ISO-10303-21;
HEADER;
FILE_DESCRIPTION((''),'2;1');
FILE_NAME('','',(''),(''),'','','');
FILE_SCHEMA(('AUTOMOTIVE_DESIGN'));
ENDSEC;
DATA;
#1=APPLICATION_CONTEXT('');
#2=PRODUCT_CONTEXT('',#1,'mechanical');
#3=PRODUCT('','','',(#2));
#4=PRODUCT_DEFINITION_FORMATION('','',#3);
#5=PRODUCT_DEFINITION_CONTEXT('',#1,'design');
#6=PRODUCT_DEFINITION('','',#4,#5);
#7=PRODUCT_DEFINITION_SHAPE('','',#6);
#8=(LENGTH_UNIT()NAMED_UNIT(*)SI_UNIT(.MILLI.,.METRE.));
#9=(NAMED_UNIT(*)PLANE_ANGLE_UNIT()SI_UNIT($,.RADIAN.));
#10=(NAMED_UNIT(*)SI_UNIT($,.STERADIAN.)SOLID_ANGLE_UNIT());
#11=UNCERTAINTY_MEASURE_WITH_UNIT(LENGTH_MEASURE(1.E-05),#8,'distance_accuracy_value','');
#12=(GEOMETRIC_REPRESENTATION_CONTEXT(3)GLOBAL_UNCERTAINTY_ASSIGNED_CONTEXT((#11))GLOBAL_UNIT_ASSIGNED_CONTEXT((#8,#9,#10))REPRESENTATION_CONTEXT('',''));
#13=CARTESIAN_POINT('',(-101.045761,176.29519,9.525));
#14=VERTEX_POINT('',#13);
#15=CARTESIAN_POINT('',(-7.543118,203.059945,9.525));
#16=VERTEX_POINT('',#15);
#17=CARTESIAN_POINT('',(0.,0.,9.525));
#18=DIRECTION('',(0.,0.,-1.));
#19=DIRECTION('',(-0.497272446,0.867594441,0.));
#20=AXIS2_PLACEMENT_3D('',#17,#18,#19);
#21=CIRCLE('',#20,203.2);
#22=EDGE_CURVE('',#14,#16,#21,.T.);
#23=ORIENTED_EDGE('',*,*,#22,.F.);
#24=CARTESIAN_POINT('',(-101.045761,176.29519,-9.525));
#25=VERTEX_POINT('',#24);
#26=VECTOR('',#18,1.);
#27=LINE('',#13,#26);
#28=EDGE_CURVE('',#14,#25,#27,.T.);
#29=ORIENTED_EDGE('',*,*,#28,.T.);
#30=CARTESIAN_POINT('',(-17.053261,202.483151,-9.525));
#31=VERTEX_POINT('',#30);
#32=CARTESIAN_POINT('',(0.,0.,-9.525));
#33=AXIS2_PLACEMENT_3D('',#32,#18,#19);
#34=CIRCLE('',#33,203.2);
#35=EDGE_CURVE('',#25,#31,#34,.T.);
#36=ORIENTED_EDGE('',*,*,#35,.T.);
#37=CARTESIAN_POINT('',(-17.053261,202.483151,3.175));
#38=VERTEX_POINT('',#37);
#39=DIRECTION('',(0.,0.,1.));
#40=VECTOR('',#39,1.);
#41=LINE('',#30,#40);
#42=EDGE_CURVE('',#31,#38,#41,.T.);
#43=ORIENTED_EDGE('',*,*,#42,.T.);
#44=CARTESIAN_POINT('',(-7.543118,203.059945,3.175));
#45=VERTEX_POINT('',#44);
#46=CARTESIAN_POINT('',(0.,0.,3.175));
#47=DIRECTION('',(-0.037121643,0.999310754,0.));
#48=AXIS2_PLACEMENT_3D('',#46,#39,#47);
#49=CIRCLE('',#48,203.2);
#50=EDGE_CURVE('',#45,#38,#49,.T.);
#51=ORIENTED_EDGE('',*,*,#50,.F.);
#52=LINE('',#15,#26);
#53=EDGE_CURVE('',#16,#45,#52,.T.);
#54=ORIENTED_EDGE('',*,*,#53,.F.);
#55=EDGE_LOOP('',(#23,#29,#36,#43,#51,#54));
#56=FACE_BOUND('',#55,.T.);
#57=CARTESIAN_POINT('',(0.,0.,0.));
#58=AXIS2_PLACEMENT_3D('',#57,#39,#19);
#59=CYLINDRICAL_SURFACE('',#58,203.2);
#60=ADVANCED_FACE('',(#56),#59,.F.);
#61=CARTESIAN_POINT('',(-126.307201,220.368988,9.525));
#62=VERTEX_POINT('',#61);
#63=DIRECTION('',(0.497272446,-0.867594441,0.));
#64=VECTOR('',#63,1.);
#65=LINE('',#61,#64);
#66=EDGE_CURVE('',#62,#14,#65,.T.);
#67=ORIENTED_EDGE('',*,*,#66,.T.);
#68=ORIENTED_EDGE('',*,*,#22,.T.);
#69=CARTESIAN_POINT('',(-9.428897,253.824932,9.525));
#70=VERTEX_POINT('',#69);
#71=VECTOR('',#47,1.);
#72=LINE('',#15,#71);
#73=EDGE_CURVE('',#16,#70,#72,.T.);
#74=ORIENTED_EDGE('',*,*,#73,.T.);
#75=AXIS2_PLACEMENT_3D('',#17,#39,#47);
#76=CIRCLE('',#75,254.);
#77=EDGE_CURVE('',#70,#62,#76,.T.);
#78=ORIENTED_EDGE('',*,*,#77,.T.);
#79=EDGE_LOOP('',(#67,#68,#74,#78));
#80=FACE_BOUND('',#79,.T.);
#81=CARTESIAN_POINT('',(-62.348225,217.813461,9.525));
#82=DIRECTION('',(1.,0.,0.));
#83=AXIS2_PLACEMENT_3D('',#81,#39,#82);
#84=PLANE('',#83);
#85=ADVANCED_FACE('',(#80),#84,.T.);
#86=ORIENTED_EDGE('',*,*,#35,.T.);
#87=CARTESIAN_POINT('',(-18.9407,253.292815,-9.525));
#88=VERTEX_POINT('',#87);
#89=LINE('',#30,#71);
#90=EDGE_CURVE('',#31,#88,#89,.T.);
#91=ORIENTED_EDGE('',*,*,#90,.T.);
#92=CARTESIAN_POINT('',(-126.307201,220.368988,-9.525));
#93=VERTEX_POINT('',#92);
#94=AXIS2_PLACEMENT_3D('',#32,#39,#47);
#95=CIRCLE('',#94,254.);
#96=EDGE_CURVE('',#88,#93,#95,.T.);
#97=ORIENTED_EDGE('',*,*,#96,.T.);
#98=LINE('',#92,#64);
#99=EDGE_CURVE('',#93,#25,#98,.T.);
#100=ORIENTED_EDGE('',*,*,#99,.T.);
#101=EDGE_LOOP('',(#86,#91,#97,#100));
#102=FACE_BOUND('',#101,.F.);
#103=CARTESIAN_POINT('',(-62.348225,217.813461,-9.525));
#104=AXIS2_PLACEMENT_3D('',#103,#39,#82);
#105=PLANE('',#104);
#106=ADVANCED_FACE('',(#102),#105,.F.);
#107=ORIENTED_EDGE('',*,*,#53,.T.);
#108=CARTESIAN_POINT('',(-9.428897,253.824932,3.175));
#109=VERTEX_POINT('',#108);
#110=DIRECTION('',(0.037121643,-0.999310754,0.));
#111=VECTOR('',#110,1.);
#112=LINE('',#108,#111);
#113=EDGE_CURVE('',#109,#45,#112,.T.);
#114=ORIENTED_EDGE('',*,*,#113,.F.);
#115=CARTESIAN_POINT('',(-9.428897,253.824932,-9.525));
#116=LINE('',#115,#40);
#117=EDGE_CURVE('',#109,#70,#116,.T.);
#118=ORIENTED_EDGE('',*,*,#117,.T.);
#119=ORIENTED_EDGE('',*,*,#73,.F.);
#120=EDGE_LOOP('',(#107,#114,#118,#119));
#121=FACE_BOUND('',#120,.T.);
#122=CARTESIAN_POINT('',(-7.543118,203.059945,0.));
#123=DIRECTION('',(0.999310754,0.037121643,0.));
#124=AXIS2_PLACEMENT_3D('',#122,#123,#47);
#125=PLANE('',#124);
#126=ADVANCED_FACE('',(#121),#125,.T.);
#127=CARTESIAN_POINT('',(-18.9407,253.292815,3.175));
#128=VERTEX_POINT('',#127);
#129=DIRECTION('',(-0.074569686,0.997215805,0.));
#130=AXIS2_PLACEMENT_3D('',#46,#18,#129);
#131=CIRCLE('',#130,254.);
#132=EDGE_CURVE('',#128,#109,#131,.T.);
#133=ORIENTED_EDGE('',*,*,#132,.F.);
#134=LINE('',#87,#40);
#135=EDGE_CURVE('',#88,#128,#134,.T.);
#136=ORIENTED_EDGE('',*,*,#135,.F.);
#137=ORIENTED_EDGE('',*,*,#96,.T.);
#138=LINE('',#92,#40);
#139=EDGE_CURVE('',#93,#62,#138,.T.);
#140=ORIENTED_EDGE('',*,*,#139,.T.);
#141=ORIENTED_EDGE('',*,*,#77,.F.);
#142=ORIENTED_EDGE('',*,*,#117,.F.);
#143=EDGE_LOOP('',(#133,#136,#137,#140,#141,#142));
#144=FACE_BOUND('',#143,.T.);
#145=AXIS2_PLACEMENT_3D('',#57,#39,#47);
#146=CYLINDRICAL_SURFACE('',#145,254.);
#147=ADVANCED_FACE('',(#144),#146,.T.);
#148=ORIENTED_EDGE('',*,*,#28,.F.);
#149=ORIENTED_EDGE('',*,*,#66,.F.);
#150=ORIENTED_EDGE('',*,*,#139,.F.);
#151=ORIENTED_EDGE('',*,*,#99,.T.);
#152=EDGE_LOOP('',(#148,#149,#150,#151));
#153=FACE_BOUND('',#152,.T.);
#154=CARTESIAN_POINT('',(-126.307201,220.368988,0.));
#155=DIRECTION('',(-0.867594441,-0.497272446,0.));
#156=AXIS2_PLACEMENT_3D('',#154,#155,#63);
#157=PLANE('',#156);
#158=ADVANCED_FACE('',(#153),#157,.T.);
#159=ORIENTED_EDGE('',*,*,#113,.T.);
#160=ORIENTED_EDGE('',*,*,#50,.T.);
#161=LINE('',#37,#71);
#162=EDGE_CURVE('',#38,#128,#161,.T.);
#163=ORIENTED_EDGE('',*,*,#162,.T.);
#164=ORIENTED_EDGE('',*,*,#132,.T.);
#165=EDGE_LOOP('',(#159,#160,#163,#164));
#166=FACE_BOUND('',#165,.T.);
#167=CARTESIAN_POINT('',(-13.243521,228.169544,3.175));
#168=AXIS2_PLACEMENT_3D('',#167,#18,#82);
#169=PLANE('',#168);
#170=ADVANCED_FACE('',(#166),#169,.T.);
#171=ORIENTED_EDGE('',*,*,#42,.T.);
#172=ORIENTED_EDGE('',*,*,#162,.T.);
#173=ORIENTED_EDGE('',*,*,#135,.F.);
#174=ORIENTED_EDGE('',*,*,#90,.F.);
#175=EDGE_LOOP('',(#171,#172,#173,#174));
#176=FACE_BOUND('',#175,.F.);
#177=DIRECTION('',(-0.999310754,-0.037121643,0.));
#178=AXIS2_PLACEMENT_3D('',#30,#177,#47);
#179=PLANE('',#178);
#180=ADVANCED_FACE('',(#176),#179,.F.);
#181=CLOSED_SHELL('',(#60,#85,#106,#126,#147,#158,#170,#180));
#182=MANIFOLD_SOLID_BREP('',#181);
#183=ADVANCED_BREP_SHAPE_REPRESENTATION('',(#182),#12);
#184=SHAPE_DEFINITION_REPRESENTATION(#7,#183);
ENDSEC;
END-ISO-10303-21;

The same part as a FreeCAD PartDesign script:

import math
import FreeCAD as App
import Part
import Sketcher

V = App.Vector
Q = App.Units.Quantity

doc = App.newDocument("Part")
body = doc.addObject("PartDesign::Body", "Body")

# Sketch on XY plane
sketch1 = body.newObject("Sketcher::SketchObject", "Sketch")
sketch1.AttachmentSupport = (doc.getObject("XY_Plane"), [""])
sketch1.MapMode = "FlatFace"
sketch1.addGeometry([
    Part.LineSegment(V(-8, 203, 0), V(-9, 254, 0)),
    Part.ArcOfCircle(Part.Circle(V(0, 0, 0), V(0, 0, 1), 254), math.radians(92), math.radians(120)),
    Part.LineSegment(V(-126, 220, 0), V(-101, 176, 0)),
    Part.ArcOfCircle(Part.Circle(V(0, 0, 0), V(0, 0, 1), 203), math.radians(92), math.radians(120)),
], False)
sketch1.addConstraint([
    Sketcher.Constraint("Coincident", 0, 2, 1, 1),
    Sketcher.Constraint("Coincident", 1, 2, 2, 1),
    Sketcher.Constraint("Coincident", 2, 2, 3, 2),
    Sketcher.Constraint("Coincident", 3, 1, 0, 1),
    Sketcher.Constraint("Coincident", 1, 3, -1, 1),
    Sketcher.Constraint("Coincident", 3, 3, -1, 1),
    Sketcher.Constraint("Radius", 1, Q("10 in")),
    Sketcher.Constraint("Radius", 3, Q("8 in")),
    Sketcher.Constraint("DistanceX", 1, 2, -1, 1, 126.307201),
    Sketcher.Constraint("DistanceY", -1, 1, 0, 2, 253.824932),
    Sketcher.Constraint("DistanceX", 2, 2, -1, 1, 101.045761),
    Sketcher.Constraint("DistanceX", 0, 2, 3, 1, 1.885779),
])
pad1 = body.newObject("PartDesign::Pad", "Pad")
pad1.Profile = sketch1
pad1.Length = Q("0.75 in")
pad1.Midplane = True

# Sketch on XY plane
sketch2 = body.newObject("Sketcher::SketchObject", "Sketch001")
sketch2.AttachmentSupport = (doc.getObject("XY_Plane"), [""])
sketch2.MapMode = "FlatFace"
sketch2.AttachmentOffset = App.Placement(V(0, 0, -0.375 * 25.4), App.Rotation())
sketch2.addGeometry([
    Part.ArcOfCircle(Part.Circle(V(0, 0, 0), V(0, 0, 1), 203), math.radians(92.13), math.radians(94.81)),
    Part.LineSegment(V(-17, 202, 0), V(-19, 253, 0)),
    Part.ArcOfCircle(Part.Circle(V(0, 0, 0), V(0, 0, 1), 254), math.radians(92.13), math.radians(94.28)),
    Part.LineSegment(V(-9, 254, 0), V(-8, 203, 0)),
], False)
sketch2.addConstraint([
    Sketcher.Constraint("Coincident", 0, 2, 1, 1),
    Sketcher.Constraint("Coincident", 1, 2, 2, 2),
    Sketcher.Constraint("Coincident", 2, 1, 3, 1),
    Sketcher.Constraint("Coincident", 3, 2, 0, 1),
    Sketcher.Constraint("Coincident", 0, 3, -1, 1),
    Sketcher.Constraint("Coincident", 2, 3, -1, 1),
    Sketcher.Constraint("Parallel", 1, 3),
    Sketcher.Constraint("Radius", 0, Q("8 in")),
    Sketcher.Constraint("Radius", 2, Q("10 in")),
    Sketcher.Constraint("DistanceX", 1, 2, -1, 1, 18.9407),
    Sketcher.Constraint("Distance", 1, 50.844708),
    Sketcher.Constraint("DistanceY", -1, 1, 2, 1, 253.824932),
])
pocket1 = body.newObject("PartDesign::Pocket", "Pocket")
pocket1.Profile = sketch2
pocket1.Length = Q("0.5 in")
pocket1.Reversed = True

doc.recompute()
